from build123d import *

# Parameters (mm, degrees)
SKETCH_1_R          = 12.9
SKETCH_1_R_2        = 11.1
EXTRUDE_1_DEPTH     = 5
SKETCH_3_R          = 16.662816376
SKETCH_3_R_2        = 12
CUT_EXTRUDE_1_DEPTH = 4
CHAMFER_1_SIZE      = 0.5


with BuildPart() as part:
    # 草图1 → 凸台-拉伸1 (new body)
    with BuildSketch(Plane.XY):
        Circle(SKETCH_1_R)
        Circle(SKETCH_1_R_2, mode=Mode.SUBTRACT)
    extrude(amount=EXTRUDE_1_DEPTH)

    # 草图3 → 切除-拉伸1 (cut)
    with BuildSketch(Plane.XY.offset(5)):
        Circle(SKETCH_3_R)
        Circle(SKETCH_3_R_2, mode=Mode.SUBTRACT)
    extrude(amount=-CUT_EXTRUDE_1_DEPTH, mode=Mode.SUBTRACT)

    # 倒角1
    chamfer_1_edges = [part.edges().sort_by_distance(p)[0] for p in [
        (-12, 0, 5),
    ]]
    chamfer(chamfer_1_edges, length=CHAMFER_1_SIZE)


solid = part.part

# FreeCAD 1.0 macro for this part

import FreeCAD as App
import Part
import Sketcher

V = App.Vector
Q = App.Units.Quantity


def edges_at(feature, points):
    """Names of the edges that pass closest to the given points."""
    edges = feature.Shape.Edges
    near = lambda p: min(range(len(edges)), key=lambda i: edges[i].distToShape(Part.Vertex(*p))[0])
    return sorted({f"Edge{near(p) + 1}" for p in points})

doc = App.newDocument("Part")
params = doc.addObject("Spreadsheet::Sheet", "Params")
for row, (alias, value) in enumerate([
    ("sketch1_diameter", "25.8 mm"),
    ("sketch1_diameter2", "22.2 mm"),
    ("pad1_length", "5 mm"),
    ("sketch2_diameter", "24 mm"),
    ("pocket1_length", "4 mm"),
    ("chamfer_size", "0.5 mm"),
], start=1):
    params.set(f"A{row}", alias)
    params.set(f"B{row}", "=" + value)
    params.setAlias(f"B{row}", alias)

body = doc.addObject("PartDesign::Body", "Body")

# Sketch on XY plane
sketch1 = doc.addObject("Sketcher::SketchObject", "Sketch")
body.addObject(sketch1)
sketch1.AttachmentSupport = (doc.XY_Plane, [""])
sketch1.MapMode = "FlatFace"
sketch1.addGeometry([
    Part.Circle(V(0, 0, 0), V(0, 0, 1), 12.9),
    Part.Circle(V(0, 0, 0), V(0, 0, 1), 11.1),
], False)
sketch1.addConstraint([
    Sketcher.Constraint("Coincident", 0, 3, -1, 1),
    Sketcher.Constraint("Coincident", 1, 3, -1, 1),
    Sketcher.Constraint("Diameter", 0, Q("25.8 mm")),
    Sketcher.Constraint("Diameter", 1, Q("22.2 mm")),
])
sketch1.setExpression("Constraints[2]", "Params.sketch1_diameter")
sketch1.setExpression("Constraints[3]", "Params.sketch1_diameter2")
pad1 = doc.addObject("PartDesign::Pad", "Pad")
body.addObject(pad1)
pad1.Profile = sketch1
pad1.setExpression("Length", "Params.pad1_length")

# Sketch on XY plane
sketch2 = doc.addObject("Sketcher::SketchObject", "Sketch001")
body.addObject(sketch2)
sketch2.AttachmentSupport = (doc.XY_Plane, [""])
sketch2.MapMode = "FlatFace"
sketch2.AttachmentOffset = App.Placement(V(0, 0, 5), App.Rotation())
sketch2.addGeometry([
    Part.Circle(V(0, 0, 0), V(0, 0, 1), 16.662816),
    Part.Circle(V(0, 0, 0), V(0, 0, 1), 12),
], False)
sketch2.addConstraint([
    Sketcher.Constraint("Coincident", 0, 3, -1, 1),
    Sketcher.Constraint("Coincident", 1, 3, -1, 1),
    Sketcher.Constraint("Diameter", 1, Q("24 mm")),
    Sketcher.Constraint("Diameter", 0, Q("33.325633 mm")),
])
sketch2.setExpression("Constraints[2]", "Params.sketch2_diameter")
pocket1 = doc.addObject("PartDesign::Pocket", "Pocket")
body.addObject(pocket1)
pocket1.Profile = sketch2
pocket1.setExpression("Length", "Params.pocket1_length")
doc.recompute()

chamfer = doc.addObject("PartDesign::Chamfer", "Chamfer")
body.addObject(chamfer)
chamfer.Base = (pocket1, edges_at(pocket1, [(-12, 0, 5)]))
chamfer.setExpression("Size", "Params.chamfer_size")

doc.recompute()
